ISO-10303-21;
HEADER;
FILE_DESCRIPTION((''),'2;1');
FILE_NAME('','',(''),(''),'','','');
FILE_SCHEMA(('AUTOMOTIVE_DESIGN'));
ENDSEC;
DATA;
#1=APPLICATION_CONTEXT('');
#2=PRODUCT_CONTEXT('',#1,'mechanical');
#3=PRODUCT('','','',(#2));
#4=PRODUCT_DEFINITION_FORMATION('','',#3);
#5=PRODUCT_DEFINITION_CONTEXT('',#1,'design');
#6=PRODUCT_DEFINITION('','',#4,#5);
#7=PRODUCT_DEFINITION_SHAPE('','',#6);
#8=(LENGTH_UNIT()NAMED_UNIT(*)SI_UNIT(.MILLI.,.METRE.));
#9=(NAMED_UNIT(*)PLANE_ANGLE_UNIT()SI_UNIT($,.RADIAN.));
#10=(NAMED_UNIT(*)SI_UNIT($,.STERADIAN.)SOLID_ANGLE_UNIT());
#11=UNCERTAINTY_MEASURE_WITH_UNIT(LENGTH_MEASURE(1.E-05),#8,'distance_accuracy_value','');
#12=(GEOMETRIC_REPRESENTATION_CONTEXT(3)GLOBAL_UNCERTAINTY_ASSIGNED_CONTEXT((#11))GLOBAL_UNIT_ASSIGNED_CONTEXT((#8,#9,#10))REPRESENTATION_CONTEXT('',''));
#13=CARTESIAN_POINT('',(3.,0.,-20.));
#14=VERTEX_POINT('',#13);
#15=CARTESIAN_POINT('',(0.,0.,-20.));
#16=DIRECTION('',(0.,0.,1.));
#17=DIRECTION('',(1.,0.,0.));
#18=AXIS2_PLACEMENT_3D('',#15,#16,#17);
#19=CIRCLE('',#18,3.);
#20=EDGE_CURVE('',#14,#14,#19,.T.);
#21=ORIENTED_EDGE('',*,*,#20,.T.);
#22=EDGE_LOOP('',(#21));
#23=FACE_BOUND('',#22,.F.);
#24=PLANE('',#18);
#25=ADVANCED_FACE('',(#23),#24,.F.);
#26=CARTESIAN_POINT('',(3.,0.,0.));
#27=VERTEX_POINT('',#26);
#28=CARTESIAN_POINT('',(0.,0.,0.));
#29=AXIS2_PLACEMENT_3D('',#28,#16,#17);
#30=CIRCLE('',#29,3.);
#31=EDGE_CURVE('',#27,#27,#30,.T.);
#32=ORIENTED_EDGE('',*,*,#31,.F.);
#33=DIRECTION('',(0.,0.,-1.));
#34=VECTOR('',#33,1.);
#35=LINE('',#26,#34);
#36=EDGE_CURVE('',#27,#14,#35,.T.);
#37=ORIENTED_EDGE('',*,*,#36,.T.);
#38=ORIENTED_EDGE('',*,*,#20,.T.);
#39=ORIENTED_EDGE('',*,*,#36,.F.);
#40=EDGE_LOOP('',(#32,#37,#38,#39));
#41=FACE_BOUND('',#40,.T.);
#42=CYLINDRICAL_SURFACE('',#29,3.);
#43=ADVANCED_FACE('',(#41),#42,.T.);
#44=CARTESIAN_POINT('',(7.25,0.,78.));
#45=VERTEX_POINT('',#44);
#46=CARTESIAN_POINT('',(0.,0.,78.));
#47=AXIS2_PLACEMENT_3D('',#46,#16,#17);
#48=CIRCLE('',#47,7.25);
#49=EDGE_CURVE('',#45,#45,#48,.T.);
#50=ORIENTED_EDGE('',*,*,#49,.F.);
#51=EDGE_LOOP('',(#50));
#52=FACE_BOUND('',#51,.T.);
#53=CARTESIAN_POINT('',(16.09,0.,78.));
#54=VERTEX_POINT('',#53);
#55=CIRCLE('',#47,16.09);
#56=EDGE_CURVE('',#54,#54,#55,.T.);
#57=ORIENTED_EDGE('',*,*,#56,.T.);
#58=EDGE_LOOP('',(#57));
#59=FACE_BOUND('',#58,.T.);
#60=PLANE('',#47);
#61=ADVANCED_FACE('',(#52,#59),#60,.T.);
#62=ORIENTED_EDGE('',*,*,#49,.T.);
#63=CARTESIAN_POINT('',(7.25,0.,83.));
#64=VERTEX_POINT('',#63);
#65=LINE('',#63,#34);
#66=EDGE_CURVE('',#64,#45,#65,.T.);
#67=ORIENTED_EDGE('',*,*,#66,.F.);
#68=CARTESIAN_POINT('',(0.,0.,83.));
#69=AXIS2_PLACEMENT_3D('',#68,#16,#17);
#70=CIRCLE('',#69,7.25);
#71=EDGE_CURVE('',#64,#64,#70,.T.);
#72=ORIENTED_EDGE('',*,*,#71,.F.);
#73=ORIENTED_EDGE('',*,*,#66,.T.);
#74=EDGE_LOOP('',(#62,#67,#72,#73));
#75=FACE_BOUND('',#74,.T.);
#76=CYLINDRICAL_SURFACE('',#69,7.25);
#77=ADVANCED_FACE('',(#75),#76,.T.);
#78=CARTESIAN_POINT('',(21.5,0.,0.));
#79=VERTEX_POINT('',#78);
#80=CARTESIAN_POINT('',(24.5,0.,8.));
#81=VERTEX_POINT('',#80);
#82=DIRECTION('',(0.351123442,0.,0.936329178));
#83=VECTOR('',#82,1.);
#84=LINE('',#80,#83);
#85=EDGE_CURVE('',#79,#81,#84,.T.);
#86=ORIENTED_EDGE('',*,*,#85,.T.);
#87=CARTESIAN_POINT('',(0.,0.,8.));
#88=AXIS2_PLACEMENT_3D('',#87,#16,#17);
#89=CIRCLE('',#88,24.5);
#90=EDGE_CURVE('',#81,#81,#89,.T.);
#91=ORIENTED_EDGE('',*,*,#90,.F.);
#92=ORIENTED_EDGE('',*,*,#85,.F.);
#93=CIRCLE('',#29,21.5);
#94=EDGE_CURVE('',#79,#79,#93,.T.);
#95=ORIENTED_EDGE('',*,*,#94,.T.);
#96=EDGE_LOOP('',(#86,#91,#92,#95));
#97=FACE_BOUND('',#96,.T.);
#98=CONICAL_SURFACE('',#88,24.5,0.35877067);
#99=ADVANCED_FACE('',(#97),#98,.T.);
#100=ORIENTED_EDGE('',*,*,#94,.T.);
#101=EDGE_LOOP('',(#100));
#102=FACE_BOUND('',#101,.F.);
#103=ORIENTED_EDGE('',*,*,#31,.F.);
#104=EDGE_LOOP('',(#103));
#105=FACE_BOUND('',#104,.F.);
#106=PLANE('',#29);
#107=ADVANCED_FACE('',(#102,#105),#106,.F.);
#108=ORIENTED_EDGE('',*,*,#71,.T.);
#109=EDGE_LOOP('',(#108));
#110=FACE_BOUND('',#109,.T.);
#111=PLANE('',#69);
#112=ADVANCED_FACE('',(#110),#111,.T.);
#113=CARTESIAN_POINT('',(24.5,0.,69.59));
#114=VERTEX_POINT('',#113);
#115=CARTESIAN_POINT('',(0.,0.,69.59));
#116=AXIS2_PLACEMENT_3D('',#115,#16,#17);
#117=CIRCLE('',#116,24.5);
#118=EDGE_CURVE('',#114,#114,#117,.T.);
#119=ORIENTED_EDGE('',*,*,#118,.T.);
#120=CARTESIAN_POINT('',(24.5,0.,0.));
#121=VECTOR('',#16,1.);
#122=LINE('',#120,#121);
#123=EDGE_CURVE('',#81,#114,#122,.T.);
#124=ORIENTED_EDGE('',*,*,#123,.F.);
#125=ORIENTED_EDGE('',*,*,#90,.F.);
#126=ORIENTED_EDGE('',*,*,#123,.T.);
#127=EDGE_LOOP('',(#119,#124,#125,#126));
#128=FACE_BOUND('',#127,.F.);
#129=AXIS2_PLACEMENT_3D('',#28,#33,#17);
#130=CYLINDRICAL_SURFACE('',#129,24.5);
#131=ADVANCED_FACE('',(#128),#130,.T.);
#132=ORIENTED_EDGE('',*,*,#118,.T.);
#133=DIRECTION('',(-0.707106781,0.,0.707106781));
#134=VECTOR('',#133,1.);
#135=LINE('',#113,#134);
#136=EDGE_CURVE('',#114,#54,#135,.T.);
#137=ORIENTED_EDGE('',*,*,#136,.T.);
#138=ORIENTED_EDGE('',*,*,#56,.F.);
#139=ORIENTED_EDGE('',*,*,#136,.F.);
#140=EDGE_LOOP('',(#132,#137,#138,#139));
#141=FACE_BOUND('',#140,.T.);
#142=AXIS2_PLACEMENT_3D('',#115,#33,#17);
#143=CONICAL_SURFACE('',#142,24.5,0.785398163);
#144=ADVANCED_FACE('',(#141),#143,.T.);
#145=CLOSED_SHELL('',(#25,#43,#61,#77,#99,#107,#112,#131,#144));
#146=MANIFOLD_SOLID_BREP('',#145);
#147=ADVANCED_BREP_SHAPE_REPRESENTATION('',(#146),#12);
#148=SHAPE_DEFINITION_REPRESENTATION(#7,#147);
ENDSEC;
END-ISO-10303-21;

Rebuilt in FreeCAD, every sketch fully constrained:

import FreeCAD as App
import Part
import Sketcher

V = App.Vector
Q = App.Units.Quantity


def edges_at(feature, points):
    """Names of the edges that pass closest to the given points."""
    edges = feature.Shape.Edges
    near = lambda p: min(range(len(edges)), key=lambda i: edges[i].distToShape(Part.Vertex(*p))[0])
    return sorted({f"Edge{near(p) + 1}" for p in points})

doc = App.newDocument("Part")
body = doc.addObject("PartDesign::Body", "Body")

# Sketch on XY plane
sketch1 = body.newObject("Sketcher::SketchObject", "Sketch")
sketch1.AttachmentSupport = (doc.getObject("XY_Plane"), [""])
sketch1.MapMode = "FlatFace"
sketch1.addGeometry(Part.Circle(V(0, 0, 0), V(0, 0, 1), 24), False)
sketch1.addConstraint([
    Sketcher.Constraint("Coincident", 0, 3, -1, 1),
    Sketcher.Constraint("Diameter", 0, Q("49 mm")),
])
pad1 = body.newObject("PartDesign::Pad", "Pad")
pad1.Profile = sketch1
pad1.Length = 83

# Sketch on XY plane
sketch2 = body.newObject("Sketcher::SketchObject", "Sketch001")
sketch2.AttachmentSupport = (doc.getObject("XY_Plane"), [""])
sketch2.MapMode = "FlatFace"
sketch2.addGeometry(Part.Circle(V(0, 0, 0), V(0, 0, 1), 3), False)
sketch2.addConstraint([
    Sketcher.Constraint("Coincident", 0, 3, -1, 1),
    Sketcher.Constraint("Diameter", 0, Q("6 mm")),
])
pad2 = body.newObject("PartDesign::Pad", "Pad001")
pad2.Profile = sketch2
pad2.Length = 20
pad2.Reversed = True
doc.recompute()

chamfer = body.newObject("PartDesign::Chamfer", "Chamfer")
chamfer.Base = (pad2, edges_at(pad2, [(-24.5, 0, 0)]))
chamfer.ChamferType = "Two distances"
chamfer.Size = 3
chamfer.Size2 = 8
chamfer.FlipDirection = True

# Sketch on XY plane
sketch3 = body.newObject("Sketcher::SketchObject", "Sketch002")
sketch3.AttachmentSupport = (doc.getObject("XY_Plane"), [""])
sketch3.MapMode = "FlatFace"
sketch3.AttachmentOffset = App.Placement(V(0, 0, 83), App.Rotation())
sketch3.addGeometry([
    Part.Circle(V(0, 0, 0), V(0, 0, 1), 24),
    Part.Circle(V(0, 0, 0), V(0, 0, 1), 7),
], False)
sketch3.addConstraint([
    Sketcher.Constraint("Coincident", 0, 3, -1, 1),
    Sketcher.Constraint("Coincident", 1, 3, -1, 1),
    Sketcher.Constraint("Diameter", 1, Q("14.5 mm")),
    Sketcher.Constraint("Diameter", 0, Q("49 mm")),
])
pocket1 = body.newObject("PartDesign::Pocket", "Pocket")
pocket1.Profile = sketch3
pocket1.Length = 5
doc.recompute()

chamfer2 = body.newObject("PartDesign::Chamfer", "Chamfer001")
chamfer2.Base = (pocket1, edges_at(pocket1, [(-24.5, 0, 78)]))
chamfer2.Size = 8.41

doc.recompute()
